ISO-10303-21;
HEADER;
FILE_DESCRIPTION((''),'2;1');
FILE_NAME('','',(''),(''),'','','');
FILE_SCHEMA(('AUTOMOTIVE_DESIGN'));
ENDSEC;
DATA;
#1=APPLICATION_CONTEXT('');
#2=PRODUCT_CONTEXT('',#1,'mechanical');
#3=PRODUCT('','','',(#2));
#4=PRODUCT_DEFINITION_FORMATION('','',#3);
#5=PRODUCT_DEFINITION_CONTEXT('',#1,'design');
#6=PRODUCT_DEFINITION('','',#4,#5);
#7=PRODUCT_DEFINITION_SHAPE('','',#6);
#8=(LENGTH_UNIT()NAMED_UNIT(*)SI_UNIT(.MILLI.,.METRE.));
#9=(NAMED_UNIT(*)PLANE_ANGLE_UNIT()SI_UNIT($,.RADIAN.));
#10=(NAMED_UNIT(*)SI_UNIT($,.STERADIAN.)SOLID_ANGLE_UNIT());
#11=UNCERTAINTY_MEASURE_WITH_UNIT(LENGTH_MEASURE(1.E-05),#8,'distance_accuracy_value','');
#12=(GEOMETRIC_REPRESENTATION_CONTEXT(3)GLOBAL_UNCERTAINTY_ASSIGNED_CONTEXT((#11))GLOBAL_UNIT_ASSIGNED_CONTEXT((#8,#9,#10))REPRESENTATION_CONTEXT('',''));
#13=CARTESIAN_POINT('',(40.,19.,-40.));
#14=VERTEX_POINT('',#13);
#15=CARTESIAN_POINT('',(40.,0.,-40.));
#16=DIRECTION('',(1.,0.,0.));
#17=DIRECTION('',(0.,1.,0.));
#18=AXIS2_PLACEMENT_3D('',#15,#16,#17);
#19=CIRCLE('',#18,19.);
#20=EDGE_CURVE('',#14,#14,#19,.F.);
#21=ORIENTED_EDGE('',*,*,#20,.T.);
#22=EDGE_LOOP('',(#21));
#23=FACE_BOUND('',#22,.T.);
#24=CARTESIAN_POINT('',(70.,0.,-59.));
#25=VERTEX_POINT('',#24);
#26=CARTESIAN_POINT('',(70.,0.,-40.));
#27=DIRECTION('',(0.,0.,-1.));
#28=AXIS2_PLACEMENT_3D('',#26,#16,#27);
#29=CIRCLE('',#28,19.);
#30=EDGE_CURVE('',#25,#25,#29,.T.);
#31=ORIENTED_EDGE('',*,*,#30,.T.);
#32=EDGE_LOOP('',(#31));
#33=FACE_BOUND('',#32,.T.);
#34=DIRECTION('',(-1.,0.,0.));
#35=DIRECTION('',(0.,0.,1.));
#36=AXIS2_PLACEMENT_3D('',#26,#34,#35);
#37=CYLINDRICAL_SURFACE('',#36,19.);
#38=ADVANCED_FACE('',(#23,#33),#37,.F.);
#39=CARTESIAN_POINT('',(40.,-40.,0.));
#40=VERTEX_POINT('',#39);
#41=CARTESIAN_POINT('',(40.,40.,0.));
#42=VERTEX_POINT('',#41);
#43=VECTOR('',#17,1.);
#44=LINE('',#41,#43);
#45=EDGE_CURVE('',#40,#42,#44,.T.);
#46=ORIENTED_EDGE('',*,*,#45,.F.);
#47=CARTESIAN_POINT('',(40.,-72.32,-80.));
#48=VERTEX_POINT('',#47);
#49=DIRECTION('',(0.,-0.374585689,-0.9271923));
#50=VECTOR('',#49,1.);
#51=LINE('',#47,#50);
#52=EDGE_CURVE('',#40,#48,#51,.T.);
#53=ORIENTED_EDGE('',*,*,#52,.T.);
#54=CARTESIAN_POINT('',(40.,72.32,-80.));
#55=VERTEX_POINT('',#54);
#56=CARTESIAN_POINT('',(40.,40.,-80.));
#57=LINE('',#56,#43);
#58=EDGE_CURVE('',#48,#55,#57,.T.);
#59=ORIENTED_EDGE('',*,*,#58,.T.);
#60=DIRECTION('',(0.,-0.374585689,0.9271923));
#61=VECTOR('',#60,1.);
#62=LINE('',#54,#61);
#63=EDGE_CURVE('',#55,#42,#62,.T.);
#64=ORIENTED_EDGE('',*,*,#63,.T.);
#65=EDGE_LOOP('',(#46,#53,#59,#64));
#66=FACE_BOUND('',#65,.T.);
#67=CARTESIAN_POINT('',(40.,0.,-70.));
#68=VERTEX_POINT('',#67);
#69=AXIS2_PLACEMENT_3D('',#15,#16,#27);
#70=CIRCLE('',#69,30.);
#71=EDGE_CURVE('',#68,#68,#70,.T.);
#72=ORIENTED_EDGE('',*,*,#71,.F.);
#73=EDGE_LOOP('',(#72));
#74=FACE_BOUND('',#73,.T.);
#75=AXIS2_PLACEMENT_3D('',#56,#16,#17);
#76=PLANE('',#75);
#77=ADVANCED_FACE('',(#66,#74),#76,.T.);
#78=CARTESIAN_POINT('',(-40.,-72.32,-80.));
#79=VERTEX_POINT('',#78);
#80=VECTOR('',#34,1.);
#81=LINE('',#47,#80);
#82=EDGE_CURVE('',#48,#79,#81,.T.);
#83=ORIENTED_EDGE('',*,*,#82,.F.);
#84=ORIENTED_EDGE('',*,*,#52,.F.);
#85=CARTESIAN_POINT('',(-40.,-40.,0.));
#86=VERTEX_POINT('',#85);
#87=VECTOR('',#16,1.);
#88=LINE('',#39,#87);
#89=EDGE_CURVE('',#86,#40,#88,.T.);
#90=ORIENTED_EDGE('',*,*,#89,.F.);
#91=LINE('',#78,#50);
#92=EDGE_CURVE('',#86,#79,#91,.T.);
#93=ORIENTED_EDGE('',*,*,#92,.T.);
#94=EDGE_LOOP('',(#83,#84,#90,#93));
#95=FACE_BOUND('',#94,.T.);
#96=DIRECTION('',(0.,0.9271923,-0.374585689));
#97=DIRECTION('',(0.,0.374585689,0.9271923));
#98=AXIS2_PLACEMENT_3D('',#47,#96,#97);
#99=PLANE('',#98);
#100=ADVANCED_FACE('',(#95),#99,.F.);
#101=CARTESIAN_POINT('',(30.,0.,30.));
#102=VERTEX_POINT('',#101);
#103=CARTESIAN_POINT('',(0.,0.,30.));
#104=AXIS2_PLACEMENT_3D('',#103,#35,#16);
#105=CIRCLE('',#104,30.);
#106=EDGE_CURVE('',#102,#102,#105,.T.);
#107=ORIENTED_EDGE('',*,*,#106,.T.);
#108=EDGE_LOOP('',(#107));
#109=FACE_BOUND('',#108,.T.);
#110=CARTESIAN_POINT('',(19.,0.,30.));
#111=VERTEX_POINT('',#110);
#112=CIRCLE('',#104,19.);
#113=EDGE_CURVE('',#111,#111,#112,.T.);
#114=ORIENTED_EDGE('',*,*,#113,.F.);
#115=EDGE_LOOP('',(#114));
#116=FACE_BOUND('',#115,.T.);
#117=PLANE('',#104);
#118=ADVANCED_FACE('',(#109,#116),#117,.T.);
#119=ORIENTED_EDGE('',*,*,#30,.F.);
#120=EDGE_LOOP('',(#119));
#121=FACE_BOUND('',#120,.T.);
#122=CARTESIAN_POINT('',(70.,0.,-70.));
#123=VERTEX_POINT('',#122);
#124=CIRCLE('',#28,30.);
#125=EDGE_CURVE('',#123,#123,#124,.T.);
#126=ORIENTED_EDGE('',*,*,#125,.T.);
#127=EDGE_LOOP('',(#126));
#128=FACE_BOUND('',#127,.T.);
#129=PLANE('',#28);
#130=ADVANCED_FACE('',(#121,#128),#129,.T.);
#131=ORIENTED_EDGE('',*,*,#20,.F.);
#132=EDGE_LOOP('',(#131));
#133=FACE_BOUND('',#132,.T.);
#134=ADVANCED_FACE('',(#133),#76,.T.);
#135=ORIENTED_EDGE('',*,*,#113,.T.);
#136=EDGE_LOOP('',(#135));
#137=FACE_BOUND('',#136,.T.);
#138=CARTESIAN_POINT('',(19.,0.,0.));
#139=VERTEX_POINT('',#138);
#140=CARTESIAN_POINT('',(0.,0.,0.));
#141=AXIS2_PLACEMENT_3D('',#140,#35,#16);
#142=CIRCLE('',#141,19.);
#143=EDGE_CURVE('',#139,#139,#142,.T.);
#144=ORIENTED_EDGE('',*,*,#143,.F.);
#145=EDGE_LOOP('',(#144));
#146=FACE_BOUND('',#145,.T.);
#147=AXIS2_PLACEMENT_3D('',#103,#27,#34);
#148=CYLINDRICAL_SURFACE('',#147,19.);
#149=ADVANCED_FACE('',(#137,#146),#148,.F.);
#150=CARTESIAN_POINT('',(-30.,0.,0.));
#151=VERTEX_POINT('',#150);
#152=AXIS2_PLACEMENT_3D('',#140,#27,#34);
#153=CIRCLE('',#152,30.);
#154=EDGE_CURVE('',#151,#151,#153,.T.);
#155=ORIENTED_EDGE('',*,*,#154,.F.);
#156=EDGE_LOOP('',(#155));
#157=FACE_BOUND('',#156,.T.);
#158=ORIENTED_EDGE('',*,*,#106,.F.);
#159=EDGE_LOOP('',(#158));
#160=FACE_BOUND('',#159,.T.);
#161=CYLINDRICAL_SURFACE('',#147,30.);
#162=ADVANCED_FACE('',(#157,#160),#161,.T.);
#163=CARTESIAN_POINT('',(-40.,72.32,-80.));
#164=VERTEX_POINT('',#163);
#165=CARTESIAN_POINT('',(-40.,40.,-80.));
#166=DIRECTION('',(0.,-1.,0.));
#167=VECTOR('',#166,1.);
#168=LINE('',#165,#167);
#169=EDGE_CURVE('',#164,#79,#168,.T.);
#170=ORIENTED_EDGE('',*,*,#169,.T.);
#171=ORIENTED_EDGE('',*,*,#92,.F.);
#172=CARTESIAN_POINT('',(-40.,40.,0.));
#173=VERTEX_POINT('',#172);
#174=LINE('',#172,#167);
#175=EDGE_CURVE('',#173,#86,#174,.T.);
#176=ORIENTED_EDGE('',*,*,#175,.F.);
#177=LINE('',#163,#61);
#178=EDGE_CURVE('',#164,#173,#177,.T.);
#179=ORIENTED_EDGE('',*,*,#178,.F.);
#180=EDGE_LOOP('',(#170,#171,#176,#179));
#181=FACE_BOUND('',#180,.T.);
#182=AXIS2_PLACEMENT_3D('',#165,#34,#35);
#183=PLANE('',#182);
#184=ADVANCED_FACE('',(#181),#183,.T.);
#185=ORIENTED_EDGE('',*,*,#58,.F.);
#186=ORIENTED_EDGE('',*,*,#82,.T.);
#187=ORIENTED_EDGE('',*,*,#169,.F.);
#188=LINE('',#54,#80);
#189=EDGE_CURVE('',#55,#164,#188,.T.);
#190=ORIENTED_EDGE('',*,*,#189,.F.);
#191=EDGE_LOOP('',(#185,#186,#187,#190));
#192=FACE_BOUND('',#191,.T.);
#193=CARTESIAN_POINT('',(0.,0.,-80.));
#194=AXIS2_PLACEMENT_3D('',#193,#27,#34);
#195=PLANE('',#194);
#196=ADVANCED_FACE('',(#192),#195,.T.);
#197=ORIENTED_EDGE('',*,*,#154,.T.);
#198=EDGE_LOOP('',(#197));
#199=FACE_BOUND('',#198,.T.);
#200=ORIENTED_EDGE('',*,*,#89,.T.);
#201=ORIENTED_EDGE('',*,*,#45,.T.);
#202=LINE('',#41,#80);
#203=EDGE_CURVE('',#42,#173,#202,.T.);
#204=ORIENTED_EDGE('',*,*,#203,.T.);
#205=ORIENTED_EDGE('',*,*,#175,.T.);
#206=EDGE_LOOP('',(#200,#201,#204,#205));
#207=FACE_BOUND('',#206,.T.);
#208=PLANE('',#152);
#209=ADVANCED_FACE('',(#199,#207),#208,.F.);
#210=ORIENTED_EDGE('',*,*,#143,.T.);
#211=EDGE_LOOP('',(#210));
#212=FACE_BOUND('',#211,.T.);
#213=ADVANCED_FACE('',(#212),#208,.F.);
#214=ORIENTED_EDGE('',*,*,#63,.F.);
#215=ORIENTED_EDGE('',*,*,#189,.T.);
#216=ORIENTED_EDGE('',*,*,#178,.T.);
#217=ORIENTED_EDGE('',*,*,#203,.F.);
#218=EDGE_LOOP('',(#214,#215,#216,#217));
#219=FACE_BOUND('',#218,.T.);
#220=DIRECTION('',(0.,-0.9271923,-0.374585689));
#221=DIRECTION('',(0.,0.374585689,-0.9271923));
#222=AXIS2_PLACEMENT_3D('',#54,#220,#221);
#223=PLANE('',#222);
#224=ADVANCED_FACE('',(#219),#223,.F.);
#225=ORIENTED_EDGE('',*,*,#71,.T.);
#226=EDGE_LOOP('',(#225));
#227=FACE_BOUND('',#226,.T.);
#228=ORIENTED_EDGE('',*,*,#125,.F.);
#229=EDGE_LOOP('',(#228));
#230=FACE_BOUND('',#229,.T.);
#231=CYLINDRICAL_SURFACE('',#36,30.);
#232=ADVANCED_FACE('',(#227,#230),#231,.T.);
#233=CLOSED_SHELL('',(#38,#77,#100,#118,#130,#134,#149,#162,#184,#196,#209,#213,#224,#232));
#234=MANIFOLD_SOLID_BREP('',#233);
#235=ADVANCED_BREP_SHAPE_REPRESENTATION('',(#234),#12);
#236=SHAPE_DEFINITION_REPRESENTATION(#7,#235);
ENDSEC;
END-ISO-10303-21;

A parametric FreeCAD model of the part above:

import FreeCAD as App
import Part
import Sketcher

V = App.Vector

doc = App.newDocument("Part")
body = doc.addObject("PartDesign::Body", "Body")

# Sketch on XY plane
sketch1 = doc.addObject("Sketcher::SketchObject", "Sketch")
body.addObject(sketch1)
sketch1.AttachmentSupport = (doc.XY_Plane, [""])
sketch1.MapMode = "FlatFace"
sketch1.addGeometry([
    Part.Circle(V(0, 0, 0), V(0, 0, 1), 30),
    Part.Circle(V(0, 0, 0), V(0, 0, 1), 19),
], False)
sketch1.addConstraint([
    Sketcher.Constraint("Coincident", 0, 3, -1, 1),
    Sketcher.Constraint("Coincident", 1, 3, -1, 1),
    Sketcher.Constraint("Diameter", 0, 60.0),
    Sketcher.Constraint("Diameter", 1, 38.0),
])
pad1 = doc.addObject("PartDesign::Pad", "Pad")
body.addObject(pad1)
pad1.Profile = sketch1
pad1.Length = 30

# Sketch on XY plane
sketch2 = doc.addObject("Sketcher::SketchObject", "Sketch001")
body.addObject(sketch2)
sketch2.AttachmentSupport = (doc.XY_Plane, [""])
sketch2.MapMode = "FlatFace"
sketch2.addGeometry([
    Part.LineSegment(V(-40, 40, 0), V(-40, -40, 0)),
    Part.LineSegment(V(-40, -40, 0), V(40, -40, 0)),
    Part.LineSegment(V(40, -40, 0), V(40, 40, 0)),
    Part.LineSegment(V(40, 40, 0), V(-40, 40, 0)),
], False)
sketch2.addConstraint([
    Sketcher.Constraint("Coincident", 0, 2, 1, 1),
    Sketcher.Constraint("Coincident", 1, 2, 2, 1),
    Sketcher.Constraint("Coincident", 2, 2, 3, 1),
    Sketcher.Constraint("Coincident", 3, 2, 0, 1),
    Sketcher.Constraint("Vertical", 0),
    Sketcher.Constraint("Horizontal", 1),
    Sketcher.Constraint("Vertical", 2),
    Sketcher.Constraint("Horizontal", 3),
    Sketcher.Constraint("Symmetric", 0, 2, 2, 2, -1, 1),
    Sketcher.Constraint("Equal", 3, 0),
    Sketcher.Constraint("DistanceX", 1, 1, 1, 2, 80.0),
])
pad2 = doc.addObject("PartDesign::Pad", "Pad001")
body.addObject(pad2)
pad2.Profile = sketch2
pad2.Length = 80
pad2.Reversed = True

# Sketch on YZ plane
sketch3 = doc.addObject("Sketcher::SketchObject", "Sketch002")
body.addObject(sketch3)
sketch3.AttachmentSupport = (doc.YZ_Plane, [""])
sketch3.MapMode = "FlatFace"
sketch3.AttachmentOffset = App.Placement(V(0, 0, 40), App.Rotation())
sketch3.addGeometry([
    Part.Circle(V(0, -40, 0), V(0, 0, 1), 30),
    Part.Circle(V(0, -40, 0), V(0, 0, 1), 19),
], False)
sketch3.addConstraint([
    Sketcher.Constraint("Coincident", 1, 3, 0, 3),
    Sketcher.Constraint("PointOnObject", 0, 3, -2),
    Sketcher.Constraint("Diameter", 0, 60.0),
    Sketcher.Constraint("Diameter", 1, 38.0),
    Sketcher.Constraint("DistanceY", 0, 3, -1, 1, 40.0),
])
pad3 = doc.addObject("PartDesign::Pad", "Pad002")
body.addObject(pad3)
pad3.Profile = sketch3
pad3.Length = 30

# Sketch on YZ plane
sketch4 = doc.addObject("Sketcher::SketchObject", "Sketch003")
body.addObject(sketch4)
sketch4.AttachmentSupport = (doc.YZ_Plane, [""])
sketch4.MapMode = "FlatFace"
sketch4.AttachmentOffset = App.Placement(V(0, 0, -40), App.Rotation())
sketch4.addGeometry([
    Part.LineSegment(V(40, -80, 0), V(72, -80, 0)),  # 0
    Part.LineSegment(V(72, -80, 0), V(40, 0, 0)),  # 1
    Part.LineSegment(V(40, 0, 0), V(40, -80, 0)),  # 2
    Part.LineSegment(V(-40, -80, 0), V(-40, 0, 0)),  # 3
    Part.LineSegment(V(-40, 0, 0), V(-72, -80, 0)),  # 4
    Part.LineSegment(V(-72, -80, 0), V(-40, -80, 0)),  # 5
], False)
sketch4.addConstraint([
    Sketcher.Constraint("Coincident", 0, 2, 1, 1),
    Sketcher.Constraint("Coincident", 1, 2, 2, 1),
    Sketcher.Constraint("Coincident", 2, 2, 0, 1),
    Sketcher.Constraint("Coincident", 3, 2, 4, 1),
    Sketcher.Constraint("Coincident", 4, 2, 5, 1),
    Sketcher.Constraint("Coincident", 5, 2, 3, 1),
    Sketcher.Constraint("Horizontal", 0),
    Sketcher.Constraint("Vertical", 2),
    Sketcher.Constraint("Vertical", 3),
    Sketcher.Constraint("Horizontal", 5),
    Sketcher.Constraint("Symmetric", 1, 2, 3, 2, -1, 1),
    Sketcher.Constraint("Symmetric", 0, 2, 4, 2, -2),
    Sketcher.Constraint("PointOnObject", 1, 2, -1),
    Sketcher.Constraint("DistanceY", 2, 2, 2, 1, 80.0),
    Sketcher.Constraint("DistanceX", -1, 1, 1, 2, 40.0),
    Sketcher.Constraint("DistanceX", 0, 1, 0, 2, 32.32),
])
pad4 = doc.addObject("PartDesign::Pad", "Pad003")
body.addObject(pad4)
pad4.Profile = sketch4
pad4.Length = 80

doc.recompute()
